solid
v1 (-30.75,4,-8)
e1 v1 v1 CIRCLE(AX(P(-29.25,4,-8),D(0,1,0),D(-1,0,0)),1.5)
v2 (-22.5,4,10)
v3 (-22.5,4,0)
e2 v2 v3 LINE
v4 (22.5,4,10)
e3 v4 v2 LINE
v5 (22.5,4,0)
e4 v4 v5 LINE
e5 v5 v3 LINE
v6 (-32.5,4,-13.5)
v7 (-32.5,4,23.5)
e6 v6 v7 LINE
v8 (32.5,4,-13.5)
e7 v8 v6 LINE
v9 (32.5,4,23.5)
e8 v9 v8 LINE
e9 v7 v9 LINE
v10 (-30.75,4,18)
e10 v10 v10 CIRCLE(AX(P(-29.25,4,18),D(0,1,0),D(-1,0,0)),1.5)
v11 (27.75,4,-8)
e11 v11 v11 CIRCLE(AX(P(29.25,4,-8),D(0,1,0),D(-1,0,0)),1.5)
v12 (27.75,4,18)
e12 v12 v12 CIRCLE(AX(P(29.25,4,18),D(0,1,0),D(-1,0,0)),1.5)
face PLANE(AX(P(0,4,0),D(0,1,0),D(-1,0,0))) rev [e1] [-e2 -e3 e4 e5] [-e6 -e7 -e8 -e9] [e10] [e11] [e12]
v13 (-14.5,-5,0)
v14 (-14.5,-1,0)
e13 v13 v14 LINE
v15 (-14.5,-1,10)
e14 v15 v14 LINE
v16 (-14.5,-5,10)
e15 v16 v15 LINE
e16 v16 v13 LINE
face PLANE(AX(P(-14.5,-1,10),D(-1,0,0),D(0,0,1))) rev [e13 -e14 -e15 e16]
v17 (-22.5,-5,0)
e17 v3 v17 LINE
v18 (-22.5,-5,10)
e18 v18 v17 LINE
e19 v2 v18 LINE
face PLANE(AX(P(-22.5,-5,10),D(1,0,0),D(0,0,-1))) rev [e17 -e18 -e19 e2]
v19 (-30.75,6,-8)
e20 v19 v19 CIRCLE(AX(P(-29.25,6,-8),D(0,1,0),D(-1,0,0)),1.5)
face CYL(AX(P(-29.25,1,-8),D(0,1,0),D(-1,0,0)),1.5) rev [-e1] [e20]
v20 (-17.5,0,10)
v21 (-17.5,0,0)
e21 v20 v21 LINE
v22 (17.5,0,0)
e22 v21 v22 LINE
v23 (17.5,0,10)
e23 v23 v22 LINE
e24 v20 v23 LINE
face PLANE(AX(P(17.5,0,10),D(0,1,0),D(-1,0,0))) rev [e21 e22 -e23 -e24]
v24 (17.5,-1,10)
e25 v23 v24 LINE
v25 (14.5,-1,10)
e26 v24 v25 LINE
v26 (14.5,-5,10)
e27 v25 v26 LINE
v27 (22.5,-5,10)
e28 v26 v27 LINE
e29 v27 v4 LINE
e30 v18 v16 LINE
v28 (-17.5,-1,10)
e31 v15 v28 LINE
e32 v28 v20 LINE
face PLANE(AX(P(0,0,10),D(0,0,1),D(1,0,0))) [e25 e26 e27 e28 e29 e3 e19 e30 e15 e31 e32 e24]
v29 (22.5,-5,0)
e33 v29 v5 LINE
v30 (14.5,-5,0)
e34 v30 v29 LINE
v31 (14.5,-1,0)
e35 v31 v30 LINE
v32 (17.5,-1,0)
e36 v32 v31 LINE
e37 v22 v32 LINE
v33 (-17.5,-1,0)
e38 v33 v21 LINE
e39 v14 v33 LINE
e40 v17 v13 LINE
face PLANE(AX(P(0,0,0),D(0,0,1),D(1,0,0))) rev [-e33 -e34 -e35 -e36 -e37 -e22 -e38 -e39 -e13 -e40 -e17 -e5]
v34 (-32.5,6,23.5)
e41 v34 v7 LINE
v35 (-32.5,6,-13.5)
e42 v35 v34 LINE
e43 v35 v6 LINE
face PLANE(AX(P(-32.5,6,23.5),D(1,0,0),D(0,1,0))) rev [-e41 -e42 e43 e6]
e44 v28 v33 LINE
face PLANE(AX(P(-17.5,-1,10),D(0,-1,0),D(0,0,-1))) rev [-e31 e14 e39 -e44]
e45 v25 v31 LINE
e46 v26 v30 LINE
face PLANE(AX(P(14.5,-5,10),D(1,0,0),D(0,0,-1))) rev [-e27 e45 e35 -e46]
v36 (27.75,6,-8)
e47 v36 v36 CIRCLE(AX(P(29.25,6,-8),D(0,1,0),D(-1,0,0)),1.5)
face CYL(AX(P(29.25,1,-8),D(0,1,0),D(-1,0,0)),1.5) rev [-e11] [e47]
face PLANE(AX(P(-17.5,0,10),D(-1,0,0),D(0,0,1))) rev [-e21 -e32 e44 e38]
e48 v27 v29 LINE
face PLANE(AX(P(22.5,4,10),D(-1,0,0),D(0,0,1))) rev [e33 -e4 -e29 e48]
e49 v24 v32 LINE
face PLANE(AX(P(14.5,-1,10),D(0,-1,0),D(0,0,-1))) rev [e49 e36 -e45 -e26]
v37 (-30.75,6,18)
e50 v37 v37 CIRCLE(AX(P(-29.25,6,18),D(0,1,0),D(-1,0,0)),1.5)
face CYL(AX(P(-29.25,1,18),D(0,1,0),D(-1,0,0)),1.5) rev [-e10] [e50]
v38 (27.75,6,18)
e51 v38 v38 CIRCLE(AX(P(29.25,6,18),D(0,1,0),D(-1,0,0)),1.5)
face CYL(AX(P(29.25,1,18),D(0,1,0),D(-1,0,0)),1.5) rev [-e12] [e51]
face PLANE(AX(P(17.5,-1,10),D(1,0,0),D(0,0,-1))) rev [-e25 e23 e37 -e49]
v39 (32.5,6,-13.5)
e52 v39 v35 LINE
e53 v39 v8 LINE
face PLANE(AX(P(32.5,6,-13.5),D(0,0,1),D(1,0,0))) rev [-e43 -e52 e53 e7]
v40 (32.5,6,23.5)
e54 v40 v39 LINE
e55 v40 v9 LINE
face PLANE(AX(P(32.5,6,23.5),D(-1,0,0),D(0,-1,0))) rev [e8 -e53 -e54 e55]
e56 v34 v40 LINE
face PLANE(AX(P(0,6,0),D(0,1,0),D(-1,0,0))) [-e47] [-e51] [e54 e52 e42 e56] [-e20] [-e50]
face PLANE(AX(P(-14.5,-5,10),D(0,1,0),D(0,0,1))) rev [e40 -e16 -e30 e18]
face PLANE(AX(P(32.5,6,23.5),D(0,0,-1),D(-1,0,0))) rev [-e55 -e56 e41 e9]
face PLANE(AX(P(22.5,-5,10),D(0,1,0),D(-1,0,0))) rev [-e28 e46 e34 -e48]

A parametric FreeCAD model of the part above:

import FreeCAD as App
import Part
import Sketcher
Q = App.Units.Quantity

doc = App.newDocument("Part")
body = doc.addObject("PartDesign::Body", "Body")

# Sketch on XY plane
sketch1 = doc.addObject("Sketcher::SketchObject", "Sketch")
body.addObject(sketch1)
sketch1.AttachmentSupport = (doc.XY_Plane, [""])
sketch1.MapMode = "FlatFace"
sketch1.addGeometry([
    Part.LineSegment(App.Vector(-17.5, -1, 0), App.Vector(-17.5, 0, 0)),  # 0
    Part.LineSegment(App.Vector(-17.5, 0, 0), App.Vector(17.5, 0, 0)),  # 1
    Part.LineSegment(App.Vector(17.5, 0, 0), App.Vector(17.5, -1, 0)),  # 2
    Part.LineSegment(App.Vector(17.5, -1, 0), App.Vector(14.5, -1, 0)),  # 3
    Part.LineSegment(App.Vector(14.5, -1, 0), App.Vector(14.5, -5, 0)),  # 4
    Part.LineSegment(App.Vector(14.5, -5, 0), App.Vector(22.5, -5, 0)),  # 5
    Part.LineSegment(App.Vector(22.5, -5, 0), App.Vector(22.5, 4, 0)),  # 6
    Part.LineSegment(App.Vector(22.5, 4, 0), App.Vector(-22.5, 4, 0)),  # 7
    Part.LineSegment(App.Vector(-22.5, 4, 0), App.Vector(-22.5, -5, 0)),  # 8
    Part.LineSegment(App.Vector(-22.5, -5, 0), App.Vector(-14.5, -5, 0)),  # 9
    Part.LineSegment(App.Vector(-14.5, -5, 0), App.Vector(-14.5, -1, 0)),  # 10
    Part.LineSegment(App.Vector(-14.5, -1, 0), App.Vector(-17.5, -1, 0)),  # 11
], False)
sketch1.addConstraint([
    Sketcher.Constraint("Coincident", 0, 2, 1, 1),
    Sketcher.Constraint("Coincident", 1, 2, 2, 1),
    Sketcher.Constraint("Coincident", 2, 2, 3, 1),
    Sketcher.Constraint("Coincident", 3, 2, 4, 1),
    Sketcher.Constraint("Coincident", 4, 2, 5, 1),
    Sketcher.Constraint("Coincident", 5, 2, 6, 1),
    Sketcher.Constraint("Coincident", 6, 2, 7, 1),
    Sketcher.Constraint("Coincident", 7, 2, 8, 1),
    Sketcher.Constraint("Coincident", 8, 2, 9, 1),
    Sketcher.Constraint("Coincident", 9, 2, 10, 1),
    Sketcher.Constraint("Coincident", 10, 2, 11, 1),
    Sketcher.Constraint("Coincident", 11, 2, 0, 1),
    Sketcher.Constraint("Vertical", 0),
    Sketcher.Constraint("Horizontal", 1),
    Sketcher.Constraint("Vertical", 2),
    Sketcher.Constraint("Horizontal", 3),
    Sketcher.Constraint("Vertical", 4),
    Sketcher.Constraint("Horizontal", 5),
    Sketcher.Constraint("Vertical", 6),
    Sketcher.Constraint("Horizontal", 7),
    Sketcher.Constraint("Vertical", 8),
    Sketcher.Constraint("Horizontal", 9),
    Sketcher.Constraint("Vertical", 10),
    Sketcher.Constraint("Horizontal", 11),
    Sketcher.Constraint("Symmetric", 0, 2, 1, 2, -1, 1),
    Sketcher.Constraint("Symmetric", 5, 2, 8, 2, -2),
    Sketcher.Constraint("Symmetric", 3, 2, 10, 2, -2),
    Sketcher.Constraint("DistanceX", 1, 1, 1, 2, Q("35 mm")),
    Sketcher.Constraint("DistanceX", 3, 2, 3, 1, Q("3 mm")),
    Sketcher.Constraint("DistanceX", 5, 1, 5, 2, Q("8 mm")),
    Sketcher.Constraint("DistanceY", 0, 1, 0, 2, Q("1 mm")),
    Sketcher.Constraint("DistanceY", 4, 2, 4, 1, Q("4 mm")),
    Sketcher.Constraint("DistanceY", 6, 1, 6, 2, Q("9 mm")),
])
pad1 = doc.addObject("PartDesign::Pad", "Pad")
body.addObject(pad1)
pad1.Profile = sketch1
pad1.Length = 10

# Sketch on XZ plane
sketch2 = doc.addObject("Sketcher::SketchObject", "Sketch001")
body.addObject(sketch2)
sketch2.AttachmentSupport = (doc.XZ_Plane, [""])
sketch2.MapMode = "FlatFace"
sketch2.AttachmentOffset = App.Placement(App.Vector(0, 0, -4), App.Rotation())
sketch2.addGeometry([
    Part.LineSegment(App.Vector(-32, -14, 0), App.Vector(-32, 24, 0)),
    Part.LineSegment(App.Vector(-32, 24, 0), App.Vector(32, 24, 0)),
    Part.LineSegment(App.Vector(32, 24, 0), App.Vector(32, -14, 0)),
    Part.LineSegment(App.Vector(32, -14, 0), App.Vector(-32, -14, 0)),
], False)
sketch2.addConstraint([
    Sketcher.Constraint("Coincident", 0, 2, 1, 1),
    Sketcher.Constraint("Coincident", 1, 2, 2, 1),
    Sketcher.Constraint("Coincident", 2, 2, 3, 1),
    Sketcher.Constraint("Coincident", 3, 2, 0, 1),
    Sketcher.Constraint("Vertical", 0),
    Sketcher.Constraint("Horizontal", 1),
    Sketcher.Constraint("Vertical", 2),
    Sketcher.Constraint("Horizontal", 3),
    Sketcher.Constraint("DistanceX", 1, 1, 1, 2, Q("65 mm")),
    Sketcher.Constraint("DistanceY", 0, 1, 0, 2, Q("37 mm")),
    Sketcher.Constraint("DistanceX", 0, 2, -1, 1, Q("32.5 mm")),
    Sketcher.Constraint("DistanceY", -1, 1, 0, 2, Q("23.5 mm")),
])
pad2 = doc.addObject("PartDesign::Pad", "Pad001")
body.addObject(pad2)
pad2.Profile = sketch2
pad2.Length = 2
pad2.Reversed = True

# Sketch on XZ plane
sketch3 = doc.addObject("Sketcher::SketchObject", "Sketch002")
body.addObject(sketch3)
sketch3.AttachmentSupport = (doc.XZ_Plane, [""])
sketch3.MapMode = "FlatFace"
sketch3.AttachmentOffset = App.Placement(App.Vector(0, 0, -6), App.Rotation())
sketch3.addGeometry([
    Part.Circle(App.Vector(-29.2, -8, 0), App.Vector(0, 0, 1), 1.5),
    Part.Circle(App.Vector(-29.2, 18, 0), App.Vector(0, 0, 1), 1.5),
    Part.Circle(App.Vector(29.2, 18, 0), App.Vector(0, 0, 1), 1.5),
    Part.Circle(App.Vector(29.2, -8, 0), App.Vector(0, 0, 1), 1.5),
], False)
sketch3.addConstraint([
    Sketcher.Constraint("Equal", 0, 1),
    Sketcher.Constraint("Equal", 1, 2),
    Sketcher.Constraint("Equal", 2, 3),
    Sketcher.Constraint("Symmetric", 1, 3, 2, 3, -2),
    Sketcher.Constraint("Symmetric", 0, 3, 3, 3, -2),
    Sketcher.Constraint("Vertical", 0, 3, 1, 3),
    Sketcher.Constraint("Diameter", 0, Q("3 mm")),
    Sketcher.Constraint("DistanceY", 0, 3, -1, 1, Q("8 mm")),
    Sketcher.Constraint("DistanceY", -1, 1, 1, 3, Q("18 mm")),
    Sketcher.Constraint("DistanceX", 1, 3, 2, 3, Q("58.5 mm")),
])
pocket1 = doc.addObject("PartDesign::Pocket", "Pocket")
body.addObject(pocket1)
pocket1.Profile = sketch3
pocket1.Length = 5
pocket1.Reversed = True

doc.recompute()
